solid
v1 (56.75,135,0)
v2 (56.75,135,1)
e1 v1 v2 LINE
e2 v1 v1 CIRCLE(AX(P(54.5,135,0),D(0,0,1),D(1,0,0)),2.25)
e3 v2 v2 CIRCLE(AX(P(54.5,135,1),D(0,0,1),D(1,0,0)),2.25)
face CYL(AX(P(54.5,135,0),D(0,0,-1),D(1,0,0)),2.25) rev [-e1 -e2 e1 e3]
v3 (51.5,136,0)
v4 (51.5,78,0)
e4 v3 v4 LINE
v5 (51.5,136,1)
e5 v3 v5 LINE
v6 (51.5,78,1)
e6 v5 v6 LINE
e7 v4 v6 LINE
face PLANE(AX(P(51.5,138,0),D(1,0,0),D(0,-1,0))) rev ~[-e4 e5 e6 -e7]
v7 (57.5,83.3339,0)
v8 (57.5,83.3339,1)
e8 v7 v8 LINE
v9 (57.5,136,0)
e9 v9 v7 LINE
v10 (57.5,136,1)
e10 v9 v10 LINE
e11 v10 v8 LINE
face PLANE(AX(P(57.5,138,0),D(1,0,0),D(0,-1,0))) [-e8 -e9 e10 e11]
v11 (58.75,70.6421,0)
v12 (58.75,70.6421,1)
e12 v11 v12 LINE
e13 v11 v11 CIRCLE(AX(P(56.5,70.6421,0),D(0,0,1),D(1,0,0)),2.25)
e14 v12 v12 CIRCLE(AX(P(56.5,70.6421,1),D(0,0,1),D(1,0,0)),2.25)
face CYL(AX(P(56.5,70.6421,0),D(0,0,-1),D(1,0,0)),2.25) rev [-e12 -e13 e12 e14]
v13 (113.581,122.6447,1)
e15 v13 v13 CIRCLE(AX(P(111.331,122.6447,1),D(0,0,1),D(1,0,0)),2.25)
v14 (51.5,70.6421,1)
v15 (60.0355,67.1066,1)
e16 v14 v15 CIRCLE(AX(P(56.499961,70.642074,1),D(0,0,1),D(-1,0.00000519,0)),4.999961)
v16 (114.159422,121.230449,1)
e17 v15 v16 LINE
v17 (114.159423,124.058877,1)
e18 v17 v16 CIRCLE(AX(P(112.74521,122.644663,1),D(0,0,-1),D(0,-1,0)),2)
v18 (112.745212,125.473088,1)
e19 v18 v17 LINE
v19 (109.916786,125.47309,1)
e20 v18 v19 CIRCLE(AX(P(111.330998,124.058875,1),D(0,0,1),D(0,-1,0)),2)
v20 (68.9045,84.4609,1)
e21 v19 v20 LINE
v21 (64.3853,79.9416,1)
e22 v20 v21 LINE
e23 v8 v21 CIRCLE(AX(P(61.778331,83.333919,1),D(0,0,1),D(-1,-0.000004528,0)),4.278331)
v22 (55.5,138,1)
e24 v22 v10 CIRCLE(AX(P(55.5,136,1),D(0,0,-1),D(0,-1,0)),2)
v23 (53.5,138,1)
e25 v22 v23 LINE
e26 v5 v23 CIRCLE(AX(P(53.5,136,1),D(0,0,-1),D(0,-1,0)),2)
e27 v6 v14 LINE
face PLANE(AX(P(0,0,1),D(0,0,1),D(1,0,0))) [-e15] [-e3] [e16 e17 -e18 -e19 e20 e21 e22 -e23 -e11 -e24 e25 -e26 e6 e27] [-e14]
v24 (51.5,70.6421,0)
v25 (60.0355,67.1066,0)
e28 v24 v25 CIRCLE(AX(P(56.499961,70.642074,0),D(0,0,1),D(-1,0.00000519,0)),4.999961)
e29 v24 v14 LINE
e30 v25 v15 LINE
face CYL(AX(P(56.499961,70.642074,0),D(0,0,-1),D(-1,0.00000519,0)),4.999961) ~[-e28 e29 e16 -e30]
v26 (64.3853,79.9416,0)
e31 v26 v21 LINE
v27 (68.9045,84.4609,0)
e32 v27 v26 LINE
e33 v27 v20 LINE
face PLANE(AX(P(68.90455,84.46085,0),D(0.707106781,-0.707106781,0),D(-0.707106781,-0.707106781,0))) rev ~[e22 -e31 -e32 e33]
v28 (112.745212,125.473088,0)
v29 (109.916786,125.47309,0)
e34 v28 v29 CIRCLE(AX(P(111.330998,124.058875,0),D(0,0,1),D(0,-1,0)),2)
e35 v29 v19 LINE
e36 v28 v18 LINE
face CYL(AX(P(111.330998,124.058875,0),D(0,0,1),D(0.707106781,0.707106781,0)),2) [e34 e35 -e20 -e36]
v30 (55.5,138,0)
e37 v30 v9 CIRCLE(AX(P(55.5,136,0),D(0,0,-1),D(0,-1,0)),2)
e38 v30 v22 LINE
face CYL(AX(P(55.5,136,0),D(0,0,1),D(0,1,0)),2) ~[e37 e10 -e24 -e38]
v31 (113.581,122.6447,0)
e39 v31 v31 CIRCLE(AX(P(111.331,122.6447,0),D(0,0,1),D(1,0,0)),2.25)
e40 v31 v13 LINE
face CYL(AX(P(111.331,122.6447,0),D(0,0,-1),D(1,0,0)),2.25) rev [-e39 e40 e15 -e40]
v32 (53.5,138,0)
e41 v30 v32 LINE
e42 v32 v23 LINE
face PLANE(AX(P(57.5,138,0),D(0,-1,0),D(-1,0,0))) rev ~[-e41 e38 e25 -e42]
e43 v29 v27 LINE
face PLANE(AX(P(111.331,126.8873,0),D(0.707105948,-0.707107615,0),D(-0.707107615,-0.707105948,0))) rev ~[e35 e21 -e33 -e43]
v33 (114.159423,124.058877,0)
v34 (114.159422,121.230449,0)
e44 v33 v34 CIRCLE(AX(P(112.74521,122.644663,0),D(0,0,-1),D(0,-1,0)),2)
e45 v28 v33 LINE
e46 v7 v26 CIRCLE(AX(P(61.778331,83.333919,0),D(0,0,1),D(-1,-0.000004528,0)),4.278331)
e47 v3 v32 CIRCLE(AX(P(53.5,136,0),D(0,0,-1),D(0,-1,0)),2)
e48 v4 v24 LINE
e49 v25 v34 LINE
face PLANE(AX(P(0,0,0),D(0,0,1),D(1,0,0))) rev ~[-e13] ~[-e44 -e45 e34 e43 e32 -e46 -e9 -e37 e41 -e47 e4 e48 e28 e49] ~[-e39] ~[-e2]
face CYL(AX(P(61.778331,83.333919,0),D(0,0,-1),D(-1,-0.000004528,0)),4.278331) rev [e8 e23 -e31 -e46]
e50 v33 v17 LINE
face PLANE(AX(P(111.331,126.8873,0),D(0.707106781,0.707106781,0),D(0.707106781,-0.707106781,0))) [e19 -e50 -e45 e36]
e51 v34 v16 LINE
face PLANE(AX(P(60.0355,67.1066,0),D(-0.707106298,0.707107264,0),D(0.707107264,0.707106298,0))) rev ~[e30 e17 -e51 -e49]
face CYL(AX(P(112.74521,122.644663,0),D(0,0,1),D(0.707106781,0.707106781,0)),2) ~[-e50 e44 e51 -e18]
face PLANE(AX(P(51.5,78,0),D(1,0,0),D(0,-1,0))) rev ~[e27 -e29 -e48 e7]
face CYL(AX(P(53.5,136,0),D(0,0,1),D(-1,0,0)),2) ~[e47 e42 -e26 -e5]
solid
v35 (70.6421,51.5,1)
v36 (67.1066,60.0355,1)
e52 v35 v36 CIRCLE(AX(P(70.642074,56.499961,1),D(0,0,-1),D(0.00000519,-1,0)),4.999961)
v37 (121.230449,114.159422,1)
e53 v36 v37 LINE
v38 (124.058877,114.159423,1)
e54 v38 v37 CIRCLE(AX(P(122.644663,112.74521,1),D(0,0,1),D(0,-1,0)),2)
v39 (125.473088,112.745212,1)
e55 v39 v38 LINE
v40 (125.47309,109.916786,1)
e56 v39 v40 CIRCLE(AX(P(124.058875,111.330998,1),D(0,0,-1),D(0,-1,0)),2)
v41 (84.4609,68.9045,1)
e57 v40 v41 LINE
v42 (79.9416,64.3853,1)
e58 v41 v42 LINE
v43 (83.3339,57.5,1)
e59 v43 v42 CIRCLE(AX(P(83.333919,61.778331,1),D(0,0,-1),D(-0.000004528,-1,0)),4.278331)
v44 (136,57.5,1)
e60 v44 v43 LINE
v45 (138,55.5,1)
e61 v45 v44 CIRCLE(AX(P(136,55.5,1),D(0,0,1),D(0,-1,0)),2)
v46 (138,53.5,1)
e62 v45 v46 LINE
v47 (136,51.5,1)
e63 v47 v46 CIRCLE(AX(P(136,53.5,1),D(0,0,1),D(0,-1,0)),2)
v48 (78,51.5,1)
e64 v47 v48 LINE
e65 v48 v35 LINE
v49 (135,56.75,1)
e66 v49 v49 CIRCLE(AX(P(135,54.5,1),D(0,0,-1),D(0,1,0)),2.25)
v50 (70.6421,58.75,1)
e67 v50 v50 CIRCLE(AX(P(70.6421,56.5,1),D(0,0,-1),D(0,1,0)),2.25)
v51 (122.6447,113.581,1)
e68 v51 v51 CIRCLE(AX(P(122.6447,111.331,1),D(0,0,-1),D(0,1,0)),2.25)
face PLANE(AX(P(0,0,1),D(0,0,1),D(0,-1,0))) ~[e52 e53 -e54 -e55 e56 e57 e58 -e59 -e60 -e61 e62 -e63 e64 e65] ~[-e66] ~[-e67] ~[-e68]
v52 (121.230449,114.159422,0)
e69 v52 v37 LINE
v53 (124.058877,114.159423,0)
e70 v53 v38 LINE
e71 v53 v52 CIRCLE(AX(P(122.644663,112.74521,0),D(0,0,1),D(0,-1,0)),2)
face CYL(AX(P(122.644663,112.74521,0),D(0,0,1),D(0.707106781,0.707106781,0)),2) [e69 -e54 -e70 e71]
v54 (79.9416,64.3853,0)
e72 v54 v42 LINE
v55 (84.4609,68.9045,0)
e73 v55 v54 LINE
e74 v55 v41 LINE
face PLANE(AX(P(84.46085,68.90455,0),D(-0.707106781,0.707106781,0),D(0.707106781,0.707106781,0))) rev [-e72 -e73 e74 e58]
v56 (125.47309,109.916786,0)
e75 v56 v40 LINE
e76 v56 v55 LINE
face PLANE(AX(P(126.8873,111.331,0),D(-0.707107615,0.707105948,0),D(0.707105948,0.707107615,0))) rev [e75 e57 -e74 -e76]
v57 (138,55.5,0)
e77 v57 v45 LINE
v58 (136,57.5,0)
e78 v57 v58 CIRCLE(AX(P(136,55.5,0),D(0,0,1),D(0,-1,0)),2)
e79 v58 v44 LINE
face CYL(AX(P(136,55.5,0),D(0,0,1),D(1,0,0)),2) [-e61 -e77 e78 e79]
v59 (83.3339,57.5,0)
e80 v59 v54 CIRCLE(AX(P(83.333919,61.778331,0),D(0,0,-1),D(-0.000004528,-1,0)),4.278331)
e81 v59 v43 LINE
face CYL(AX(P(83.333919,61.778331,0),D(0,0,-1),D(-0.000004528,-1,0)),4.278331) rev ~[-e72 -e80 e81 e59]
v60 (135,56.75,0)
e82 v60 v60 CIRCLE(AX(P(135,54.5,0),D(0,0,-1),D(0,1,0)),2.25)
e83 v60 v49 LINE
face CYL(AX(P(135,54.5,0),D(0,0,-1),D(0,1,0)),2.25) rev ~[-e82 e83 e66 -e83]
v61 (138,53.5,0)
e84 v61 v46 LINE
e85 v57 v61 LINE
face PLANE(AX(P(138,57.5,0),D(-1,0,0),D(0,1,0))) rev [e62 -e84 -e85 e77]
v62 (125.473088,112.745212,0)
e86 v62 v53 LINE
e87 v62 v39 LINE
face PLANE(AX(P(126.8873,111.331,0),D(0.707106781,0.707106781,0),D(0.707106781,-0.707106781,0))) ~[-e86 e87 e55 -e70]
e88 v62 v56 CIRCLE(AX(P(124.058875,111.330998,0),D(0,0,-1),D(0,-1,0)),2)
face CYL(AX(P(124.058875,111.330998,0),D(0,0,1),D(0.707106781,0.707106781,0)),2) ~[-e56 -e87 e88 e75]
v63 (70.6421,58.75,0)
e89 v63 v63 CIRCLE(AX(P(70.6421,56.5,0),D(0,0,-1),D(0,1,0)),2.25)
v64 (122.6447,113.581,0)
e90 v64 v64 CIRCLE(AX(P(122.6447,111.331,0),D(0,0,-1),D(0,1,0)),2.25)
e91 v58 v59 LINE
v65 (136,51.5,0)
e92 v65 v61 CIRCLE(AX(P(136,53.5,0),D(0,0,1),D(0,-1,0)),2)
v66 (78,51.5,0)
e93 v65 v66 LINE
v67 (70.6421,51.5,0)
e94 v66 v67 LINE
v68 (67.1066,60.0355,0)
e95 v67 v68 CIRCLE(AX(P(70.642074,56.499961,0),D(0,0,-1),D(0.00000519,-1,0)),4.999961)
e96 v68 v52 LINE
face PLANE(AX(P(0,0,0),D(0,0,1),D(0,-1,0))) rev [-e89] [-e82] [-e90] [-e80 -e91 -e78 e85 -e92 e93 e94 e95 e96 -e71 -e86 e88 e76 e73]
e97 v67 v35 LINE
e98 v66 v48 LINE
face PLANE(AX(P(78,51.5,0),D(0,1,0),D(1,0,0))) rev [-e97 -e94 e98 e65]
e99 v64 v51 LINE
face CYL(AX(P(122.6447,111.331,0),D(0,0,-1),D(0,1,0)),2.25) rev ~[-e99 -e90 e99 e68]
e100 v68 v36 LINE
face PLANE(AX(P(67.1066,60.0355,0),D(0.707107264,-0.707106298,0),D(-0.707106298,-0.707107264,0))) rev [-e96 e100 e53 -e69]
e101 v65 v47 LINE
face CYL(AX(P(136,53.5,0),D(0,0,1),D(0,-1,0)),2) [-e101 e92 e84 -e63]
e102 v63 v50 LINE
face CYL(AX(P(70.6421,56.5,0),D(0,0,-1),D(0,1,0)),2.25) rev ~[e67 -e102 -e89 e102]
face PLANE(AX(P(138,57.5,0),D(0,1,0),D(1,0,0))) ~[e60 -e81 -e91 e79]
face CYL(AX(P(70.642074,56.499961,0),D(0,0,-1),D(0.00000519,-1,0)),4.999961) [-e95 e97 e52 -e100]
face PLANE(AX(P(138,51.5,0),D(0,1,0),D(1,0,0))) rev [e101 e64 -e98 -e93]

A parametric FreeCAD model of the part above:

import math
import FreeCAD as App
import Part
import Sketcher
from FreeCAD import Vector
Q = App.Units.Quantity


def edges_at(feature, points):
    """Names of the edges that pass closest to the given points."""
    edges = feature.Shape.Edges
    near = lambda p: min(range(len(edges)), key=lambda i: edges[i].distToShape(Part.Vertex(*p))[0])
    return sorted({f"Edge{near(p) + 1}" for p in points})

doc = App.newDocument("Part")
params = doc.addObject("Spreadsheet::Sheet", "Params")
for row, (alias, value) in enumerate([
    ("sketch1_diameter", "4.5 mm"),
    ("sketch1_radius", "5 mm"),
    ("sketch1_width", "6 mm"),
    ("sketch1_length", "6 mm"),
    ("sketch1_length2", "60 mm"),
    ("pad1_length", "1 mm"),
    ("fillet_radius", "2 mm"),
], start=1):
    params.set(f"A{row}", alias)
    params.set(f"B{row}", "=" + value)
    params.setAlias(f"B{row}", alias)

body = doc.addObject("PartDesign::Body", "Body")
body.AllowCompound = True

sketch1 = doc.addObject("Sketcher::SketchObject", "Sketch")
body.addObject(sketch1)
sketch1.AttachmentSupport = (doc.XY_Plane, [""])
sketch1.MapMode = "FlatFace"
sketch1.addGeometry([
    Part.LineSegment(Vector(115.5736, 122.6447, 0), Vector(111.331, 126.8873, 0)),
    Part.LineSegment(Vector(111.331, 126.8873, 0), Vector(68.9045, 84.4609, 0)),
    Part.LineSegment(Vector(68.90455, 84.46085, 0), Vector(64.3853, 79.9416, 0)),
    Part.ArcOfCircle(Part.Circle(Vector(61.7783, 83.3339, 0), Vector(0, 0, 1), 4.2783), math.radians(180), math.radians(307.542463)),
    Part.LineSegment(Vector(57.5, 83.3339, 0), Vector(57.5, 138, 0)),
    Part.LineSegment(Vector(57.5, 138, 0), Vector(51.5, 138, 0)),
    Part.LineSegment(Vector(51.5, 138, 0), Vector(51.5, 70.6421, 0)),
    Part.ArcOfCircle(Part.Circle(Vector(56.5, 70.6421, 0), Vector(0, 0, 1), 5), math.radians(180), math.radians(315)),
    Part.LineSegment(Vector(60.0355, 67.1066, 0), Vector(115.573638, 122.644662, 0)),
    Part.Circle(Vector(56.5, 70.6421, 0), Vector(0, 0, 1), 2.25),
    Part.Circle(Vector(54.5, 135, 0), Vector(0, 0, 1), 2.25),
    Part.Circle(Vector(111.331, 122.6447, 0), Vector(0, 0, 1), 2.25),
], False)
sketch1.addConstraint([
    Sketcher.Constraint("Coincident", 0, 2, 1, 1),
    Sketcher.Constraint("Coincident", 1, 2, 2, 1),
    Sketcher.Constraint("Coincident", 2, 2, 3, 2),
    Sketcher.Constraint("Tangent", 3, 1, 4, 1),
    Sketcher.Constraint("Coincident", 4, 2, 5, 1),
    Sketcher.Constraint("Coincident", 5, 2, 6, 1),
    Sketcher.Constraint("Tangent", 6, 2, 7, 1),
    Sketcher.Constraint("Tangent", 7, 2, 8, 1),
    Sketcher.Constraint("Coincident", 8, 2, 0, 1),
    Sketcher.Constraint("Vertical", 4),
    Sketcher.Constraint("Horizontal", 5),
    Sketcher.Constraint("Vertical", 6),
    Sketcher.Constraint("Coincident", 9, 3, 7, 3),
    Sketcher.Constraint("Equal", 9, 10),
    Sketcher.Constraint("Equal", 10, 11),
    Sketcher.Constraint("Perpendicular", 0, 1),
    Sketcher.Constraint("Parallel", 1, 2),
    Sketcher.Constraint("Parallel", 2, 8),
    Sketcher.Constraint("Horizontal", 11, 3, 8, 2),
    Sketcher.Constraint("Vertical", 11, 3, 0, 2),
    Sketcher.Constraint("Diameter", 9, 4.5),
    Sketcher.Constraint("Radius", 7, 5.0),
    Sketcher.Constraint("DistanceX", 5, 2, 5, 1, 6.0),
    Sketcher.Constraint("Angle", 0, Q("135 deg")),
    Sketcher.Constraint("Distance", 0, 6.0),
    Sketcher.Constraint("Distance", 1, 60.0),
    Sketcher.Constraint("DistanceY", -1, 1, 10, 3, 135.0),
    Sketcher.Constraint("DistanceY", -1, 1, 4, 2, 138.0),
    Sketcher.Constraint("DistanceX", 10, 3, 7, 3, 2.0),
    Sketcher.Constraint("DistanceX", -1, 1, 7, 3, 56.5),
    Sketcher.Constraint("Radius", 3, 4.2783),
    Sketcher.Constraint("DistanceY", 4, 1, 4, 2, 54.666),
    Sketcher.Constraint("DistanceY", 6, 2, 6, 1, 67.358),
    Sketcher.Constraint("DistanceX", -1, 1, 11, 3, 111.331),
])
sketch1.setExpression("Constraints[20]", "Params.sketch1_diameter")
sketch1.setExpression("Constraints[21]", "Params.sketch1_radius")
sketch1.setExpression("Constraints[22]", "Params.sketch1_width")
sketch1.setExpression("Constraints[24]", "Params.sketch1_length")
sketch1.setExpression("Constraints[25]", "Params.sketch1_length2")
pad1 = doc.addObject("PartDesign::Pad", "Pad")
body.addObject(pad1)
pad1.Profile = sketch1
pad1.setExpression("Length", "Params.pad1_length")
doc.recompute()

fillet = doc.addObject("PartDesign::Fillet", "Fillet")
body.addObject(fillet)
fillet.Base = (pad1, edges_at(pad1, [
    (57.5, 138, 0.5),
    (51.5, 138, 0.5),
    (111.331, 126.887, 0.5),
    (115.574, 122.645, 0.5),
]))
fillet.setExpression("Radius", "Params.fillet_radius")
doc.recompute()

datumplane = doc.addObject("PartDesign::Plane", "DatumPlane")
body.addObject(datumplane)
datumplane.Placement = App.Placement(Vector(0, 0, 0), App.Rotation(Vector(-0.707106781, -0.707106781, 0), Vector(0, 0, -1), Vector(0.707106781, -0.707106781, 0), "ZXY"))
mirrored = doc.addObject("PartDesign::Mirrored", "Mirrored")
body.addObject(mirrored)
mirrored.Originals = [pad1, fillet]
mirrored.MirrorPlane = (datumplane, [""])
body.Tip = mirrored

doc.recompute()
